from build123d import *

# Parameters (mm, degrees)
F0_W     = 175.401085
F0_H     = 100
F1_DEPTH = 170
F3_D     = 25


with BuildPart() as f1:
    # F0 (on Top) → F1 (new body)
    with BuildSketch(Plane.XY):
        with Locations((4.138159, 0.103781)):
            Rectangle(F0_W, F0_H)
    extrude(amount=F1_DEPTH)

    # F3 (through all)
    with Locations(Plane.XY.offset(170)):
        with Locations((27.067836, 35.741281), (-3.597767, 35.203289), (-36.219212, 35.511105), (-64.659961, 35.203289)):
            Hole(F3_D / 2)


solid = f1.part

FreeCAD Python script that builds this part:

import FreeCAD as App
import Part
import Sketcher
Q = App.Units.Quantity

doc = App.newDocument("Part")
params = doc.addObject("Spreadsheet::Sheet", "Params")
for row, (alias, value) in enumerate([
    ("sketch1_height", "100 mm"),
    ("pad1_length", "170 mm"),
    ("sketch2_diameter", "25 mm"),
    ("hole_diameter", "25 mm"),
], start=1):
    params.set(f"A{row}", alias)
    params.set(f"B{row}", "=" + value)
    params.setAlias(f"B{row}", alias)

body = doc.addObject("PartDesign::Body", "Body")

# Sketch on XY plane
sketch1 = body.newObject("Sketcher::SketchObject", "Sketch")
sketch1.AttachmentSupport = (doc.getObject("XY_Plane"), [""])
sketch1.MapMode = "FlatFace"
sketch1.addGeometry(Part.LineSegment(App.Vector(-83.562383, 50.103781, 0), App.Vector(-83.562383, -49.896219, 0)), False)
sketch1.addGeometry(Part.LineSegment(App.Vector(-83.562383, -49.896219, 0), App.Vector(91.838701, -49.896219, 0)), False)
sketch1.addGeometry(Part.LineSegment(App.Vector(91.838701, -49.896219, 0), App.Vector(91.838701, 50.103781, 0)), False)
sketch1.addGeometry(Part.LineSegment(App.Vector(91.838701, 50.103781, 0), App.Vector(-83.562383, 50.103781, 0)), False)
sketch1.addConstraint(Sketcher.Constraint("Coincident", 0, 2, 1, 1))
sketch1.addConstraint(Sketcher.Constraint("Coincident", 1, 2, 2, 1))
sketch1.addConstraint(Sketcher.Constraint("Coincident", 2, 2, 3, 1))
sketch1.addConstraint(Sketcher.Constraint("Coincident", 3, 2, 0, 1))
sketch1.addConstraint(Sketcher.Constraint("Vertical", 0))
sketch1.addConstraint(Sketcher.Constraint("Horizontal", 1))
sketch1.addConstraint(Sketcher.Constraint("Vertical", 2))
sketch1.addConstraint(Sketcher.Constraint("Horizontal", 3))
sketch1.addConstraint(Sketcher.Constraint("DistanceY", 0, 2, 0, 1, Q("100 mm")))
sketch1.addConstraint(Sketcher.Constraint("DistanceX", -1, 1, 1, 2, Q("91.838701 mm")))
sketch1.addConstraint(Sketcher.Constraint("DistanceX", 1, 1, 1, 2, Q("175.401085 mm")))
sketch1.addConstraint(Sketcher.Constraint("DistanceY", 0, 2, -1, 1, Q("49.896219 mm")))
sketch1.setExpression("Constraints[8]", "Params.sketch1_height")
pad1 = body.newObject("PartDesign::Pad", "Pad")
pad1.Profile = sketch1
pad1.setExpression("Length", "Params.pad1_length")

# Sketch on XY plane
sketch2 = body.newObject("Sketcher::SketchObject", "Sketch001")
sketch2.AttachmentSupport = (doc.getObject("XY_Plane"), [""])
sketch2.MapMode = "FlatFace"
sketch2.AttachmentOffset = App.Placement(App.Vector(0, 0, 170), App.Rotation())
sketch2.addGeometry(Part.Circle(App.Vector(27.067836, 35.741281, 0), App.Vector(0, 0, 1), 12.5), False)
sketch2.addGeometry(Part.Circle(App.Vector(-3.597767, 35.203289, 0), App.Vector(0, 0, 1), 12.5), False)
sketch2.addGeometry(Part.Circle(App.Vector(-36.219212, 35.511105, 0), App.Vector(0, 0, 1), 12.5), False)
sketch2.addGeometry(Part.Circle(App.Vector(-64.659961, 35.203289, 0), App.Vector(0, 0, 1), 12.5), False)
sketch2.addConstraint(Sketcher.Constraint("Equal", 0, 1))
sketch2.addConstraint(Sketcher.Constraint("Equal", 1, 2))
sketch2.addConstraint(Sketcher.Constraint("Equal", 2, 3))
sketch2.addConstraint(Sketcher.Constraint("Horizontal", 1, 3, 3, 3))
sketch2.addConstraint(Sketcher.Constraint("Diameter", 0, Q("25 mm")))
sketch2.addConstraint(Sketcher.Constraint("DistanceY", -1, 1, 0, 3, Q("35.741281 mm")))
sketch2.addConstraint(Sketcher.Constraint("DistanceY", -1, 1, 1, 3, Q("35.203289 mm")))
sketch2.addConstraint(Sketcher.Constraint("DistanceX", 3, 3, -1, 1, Q("64.659961 mm")))
sketch2.addConstraint(Sketcher.Constraint("DistanceX", 3, 3, 2, 3, Q("28.440749 mm")))
sketch2.addConstraint(Sketcher.Constraint("DistanceX", -1, 1, 0, 3, Q("27.067836 mm")))
sketch2.addConstraint(Sketcher.Constraint("DistanceX", 1, 3, -1, 1, Q("3.597767 mm")))
sketch2.addConstraint(Sketcher.Constraint("DistanceY", -1, 1, 2, 3, Q("35.511105 mm")))
sketch2.setExpression("Constraints[4]", "Params.sketch2_diameter")
doc.recompute()
hole = body.newObject("PartDesign::Hole", "Hole")
hole.Profile = sketch2
hole.ThreadType = "None"
hole.setExpression("Diameter", "Params.hole_diameter")
hole.DepthType = "ThroughAll"

doc.recompute()
